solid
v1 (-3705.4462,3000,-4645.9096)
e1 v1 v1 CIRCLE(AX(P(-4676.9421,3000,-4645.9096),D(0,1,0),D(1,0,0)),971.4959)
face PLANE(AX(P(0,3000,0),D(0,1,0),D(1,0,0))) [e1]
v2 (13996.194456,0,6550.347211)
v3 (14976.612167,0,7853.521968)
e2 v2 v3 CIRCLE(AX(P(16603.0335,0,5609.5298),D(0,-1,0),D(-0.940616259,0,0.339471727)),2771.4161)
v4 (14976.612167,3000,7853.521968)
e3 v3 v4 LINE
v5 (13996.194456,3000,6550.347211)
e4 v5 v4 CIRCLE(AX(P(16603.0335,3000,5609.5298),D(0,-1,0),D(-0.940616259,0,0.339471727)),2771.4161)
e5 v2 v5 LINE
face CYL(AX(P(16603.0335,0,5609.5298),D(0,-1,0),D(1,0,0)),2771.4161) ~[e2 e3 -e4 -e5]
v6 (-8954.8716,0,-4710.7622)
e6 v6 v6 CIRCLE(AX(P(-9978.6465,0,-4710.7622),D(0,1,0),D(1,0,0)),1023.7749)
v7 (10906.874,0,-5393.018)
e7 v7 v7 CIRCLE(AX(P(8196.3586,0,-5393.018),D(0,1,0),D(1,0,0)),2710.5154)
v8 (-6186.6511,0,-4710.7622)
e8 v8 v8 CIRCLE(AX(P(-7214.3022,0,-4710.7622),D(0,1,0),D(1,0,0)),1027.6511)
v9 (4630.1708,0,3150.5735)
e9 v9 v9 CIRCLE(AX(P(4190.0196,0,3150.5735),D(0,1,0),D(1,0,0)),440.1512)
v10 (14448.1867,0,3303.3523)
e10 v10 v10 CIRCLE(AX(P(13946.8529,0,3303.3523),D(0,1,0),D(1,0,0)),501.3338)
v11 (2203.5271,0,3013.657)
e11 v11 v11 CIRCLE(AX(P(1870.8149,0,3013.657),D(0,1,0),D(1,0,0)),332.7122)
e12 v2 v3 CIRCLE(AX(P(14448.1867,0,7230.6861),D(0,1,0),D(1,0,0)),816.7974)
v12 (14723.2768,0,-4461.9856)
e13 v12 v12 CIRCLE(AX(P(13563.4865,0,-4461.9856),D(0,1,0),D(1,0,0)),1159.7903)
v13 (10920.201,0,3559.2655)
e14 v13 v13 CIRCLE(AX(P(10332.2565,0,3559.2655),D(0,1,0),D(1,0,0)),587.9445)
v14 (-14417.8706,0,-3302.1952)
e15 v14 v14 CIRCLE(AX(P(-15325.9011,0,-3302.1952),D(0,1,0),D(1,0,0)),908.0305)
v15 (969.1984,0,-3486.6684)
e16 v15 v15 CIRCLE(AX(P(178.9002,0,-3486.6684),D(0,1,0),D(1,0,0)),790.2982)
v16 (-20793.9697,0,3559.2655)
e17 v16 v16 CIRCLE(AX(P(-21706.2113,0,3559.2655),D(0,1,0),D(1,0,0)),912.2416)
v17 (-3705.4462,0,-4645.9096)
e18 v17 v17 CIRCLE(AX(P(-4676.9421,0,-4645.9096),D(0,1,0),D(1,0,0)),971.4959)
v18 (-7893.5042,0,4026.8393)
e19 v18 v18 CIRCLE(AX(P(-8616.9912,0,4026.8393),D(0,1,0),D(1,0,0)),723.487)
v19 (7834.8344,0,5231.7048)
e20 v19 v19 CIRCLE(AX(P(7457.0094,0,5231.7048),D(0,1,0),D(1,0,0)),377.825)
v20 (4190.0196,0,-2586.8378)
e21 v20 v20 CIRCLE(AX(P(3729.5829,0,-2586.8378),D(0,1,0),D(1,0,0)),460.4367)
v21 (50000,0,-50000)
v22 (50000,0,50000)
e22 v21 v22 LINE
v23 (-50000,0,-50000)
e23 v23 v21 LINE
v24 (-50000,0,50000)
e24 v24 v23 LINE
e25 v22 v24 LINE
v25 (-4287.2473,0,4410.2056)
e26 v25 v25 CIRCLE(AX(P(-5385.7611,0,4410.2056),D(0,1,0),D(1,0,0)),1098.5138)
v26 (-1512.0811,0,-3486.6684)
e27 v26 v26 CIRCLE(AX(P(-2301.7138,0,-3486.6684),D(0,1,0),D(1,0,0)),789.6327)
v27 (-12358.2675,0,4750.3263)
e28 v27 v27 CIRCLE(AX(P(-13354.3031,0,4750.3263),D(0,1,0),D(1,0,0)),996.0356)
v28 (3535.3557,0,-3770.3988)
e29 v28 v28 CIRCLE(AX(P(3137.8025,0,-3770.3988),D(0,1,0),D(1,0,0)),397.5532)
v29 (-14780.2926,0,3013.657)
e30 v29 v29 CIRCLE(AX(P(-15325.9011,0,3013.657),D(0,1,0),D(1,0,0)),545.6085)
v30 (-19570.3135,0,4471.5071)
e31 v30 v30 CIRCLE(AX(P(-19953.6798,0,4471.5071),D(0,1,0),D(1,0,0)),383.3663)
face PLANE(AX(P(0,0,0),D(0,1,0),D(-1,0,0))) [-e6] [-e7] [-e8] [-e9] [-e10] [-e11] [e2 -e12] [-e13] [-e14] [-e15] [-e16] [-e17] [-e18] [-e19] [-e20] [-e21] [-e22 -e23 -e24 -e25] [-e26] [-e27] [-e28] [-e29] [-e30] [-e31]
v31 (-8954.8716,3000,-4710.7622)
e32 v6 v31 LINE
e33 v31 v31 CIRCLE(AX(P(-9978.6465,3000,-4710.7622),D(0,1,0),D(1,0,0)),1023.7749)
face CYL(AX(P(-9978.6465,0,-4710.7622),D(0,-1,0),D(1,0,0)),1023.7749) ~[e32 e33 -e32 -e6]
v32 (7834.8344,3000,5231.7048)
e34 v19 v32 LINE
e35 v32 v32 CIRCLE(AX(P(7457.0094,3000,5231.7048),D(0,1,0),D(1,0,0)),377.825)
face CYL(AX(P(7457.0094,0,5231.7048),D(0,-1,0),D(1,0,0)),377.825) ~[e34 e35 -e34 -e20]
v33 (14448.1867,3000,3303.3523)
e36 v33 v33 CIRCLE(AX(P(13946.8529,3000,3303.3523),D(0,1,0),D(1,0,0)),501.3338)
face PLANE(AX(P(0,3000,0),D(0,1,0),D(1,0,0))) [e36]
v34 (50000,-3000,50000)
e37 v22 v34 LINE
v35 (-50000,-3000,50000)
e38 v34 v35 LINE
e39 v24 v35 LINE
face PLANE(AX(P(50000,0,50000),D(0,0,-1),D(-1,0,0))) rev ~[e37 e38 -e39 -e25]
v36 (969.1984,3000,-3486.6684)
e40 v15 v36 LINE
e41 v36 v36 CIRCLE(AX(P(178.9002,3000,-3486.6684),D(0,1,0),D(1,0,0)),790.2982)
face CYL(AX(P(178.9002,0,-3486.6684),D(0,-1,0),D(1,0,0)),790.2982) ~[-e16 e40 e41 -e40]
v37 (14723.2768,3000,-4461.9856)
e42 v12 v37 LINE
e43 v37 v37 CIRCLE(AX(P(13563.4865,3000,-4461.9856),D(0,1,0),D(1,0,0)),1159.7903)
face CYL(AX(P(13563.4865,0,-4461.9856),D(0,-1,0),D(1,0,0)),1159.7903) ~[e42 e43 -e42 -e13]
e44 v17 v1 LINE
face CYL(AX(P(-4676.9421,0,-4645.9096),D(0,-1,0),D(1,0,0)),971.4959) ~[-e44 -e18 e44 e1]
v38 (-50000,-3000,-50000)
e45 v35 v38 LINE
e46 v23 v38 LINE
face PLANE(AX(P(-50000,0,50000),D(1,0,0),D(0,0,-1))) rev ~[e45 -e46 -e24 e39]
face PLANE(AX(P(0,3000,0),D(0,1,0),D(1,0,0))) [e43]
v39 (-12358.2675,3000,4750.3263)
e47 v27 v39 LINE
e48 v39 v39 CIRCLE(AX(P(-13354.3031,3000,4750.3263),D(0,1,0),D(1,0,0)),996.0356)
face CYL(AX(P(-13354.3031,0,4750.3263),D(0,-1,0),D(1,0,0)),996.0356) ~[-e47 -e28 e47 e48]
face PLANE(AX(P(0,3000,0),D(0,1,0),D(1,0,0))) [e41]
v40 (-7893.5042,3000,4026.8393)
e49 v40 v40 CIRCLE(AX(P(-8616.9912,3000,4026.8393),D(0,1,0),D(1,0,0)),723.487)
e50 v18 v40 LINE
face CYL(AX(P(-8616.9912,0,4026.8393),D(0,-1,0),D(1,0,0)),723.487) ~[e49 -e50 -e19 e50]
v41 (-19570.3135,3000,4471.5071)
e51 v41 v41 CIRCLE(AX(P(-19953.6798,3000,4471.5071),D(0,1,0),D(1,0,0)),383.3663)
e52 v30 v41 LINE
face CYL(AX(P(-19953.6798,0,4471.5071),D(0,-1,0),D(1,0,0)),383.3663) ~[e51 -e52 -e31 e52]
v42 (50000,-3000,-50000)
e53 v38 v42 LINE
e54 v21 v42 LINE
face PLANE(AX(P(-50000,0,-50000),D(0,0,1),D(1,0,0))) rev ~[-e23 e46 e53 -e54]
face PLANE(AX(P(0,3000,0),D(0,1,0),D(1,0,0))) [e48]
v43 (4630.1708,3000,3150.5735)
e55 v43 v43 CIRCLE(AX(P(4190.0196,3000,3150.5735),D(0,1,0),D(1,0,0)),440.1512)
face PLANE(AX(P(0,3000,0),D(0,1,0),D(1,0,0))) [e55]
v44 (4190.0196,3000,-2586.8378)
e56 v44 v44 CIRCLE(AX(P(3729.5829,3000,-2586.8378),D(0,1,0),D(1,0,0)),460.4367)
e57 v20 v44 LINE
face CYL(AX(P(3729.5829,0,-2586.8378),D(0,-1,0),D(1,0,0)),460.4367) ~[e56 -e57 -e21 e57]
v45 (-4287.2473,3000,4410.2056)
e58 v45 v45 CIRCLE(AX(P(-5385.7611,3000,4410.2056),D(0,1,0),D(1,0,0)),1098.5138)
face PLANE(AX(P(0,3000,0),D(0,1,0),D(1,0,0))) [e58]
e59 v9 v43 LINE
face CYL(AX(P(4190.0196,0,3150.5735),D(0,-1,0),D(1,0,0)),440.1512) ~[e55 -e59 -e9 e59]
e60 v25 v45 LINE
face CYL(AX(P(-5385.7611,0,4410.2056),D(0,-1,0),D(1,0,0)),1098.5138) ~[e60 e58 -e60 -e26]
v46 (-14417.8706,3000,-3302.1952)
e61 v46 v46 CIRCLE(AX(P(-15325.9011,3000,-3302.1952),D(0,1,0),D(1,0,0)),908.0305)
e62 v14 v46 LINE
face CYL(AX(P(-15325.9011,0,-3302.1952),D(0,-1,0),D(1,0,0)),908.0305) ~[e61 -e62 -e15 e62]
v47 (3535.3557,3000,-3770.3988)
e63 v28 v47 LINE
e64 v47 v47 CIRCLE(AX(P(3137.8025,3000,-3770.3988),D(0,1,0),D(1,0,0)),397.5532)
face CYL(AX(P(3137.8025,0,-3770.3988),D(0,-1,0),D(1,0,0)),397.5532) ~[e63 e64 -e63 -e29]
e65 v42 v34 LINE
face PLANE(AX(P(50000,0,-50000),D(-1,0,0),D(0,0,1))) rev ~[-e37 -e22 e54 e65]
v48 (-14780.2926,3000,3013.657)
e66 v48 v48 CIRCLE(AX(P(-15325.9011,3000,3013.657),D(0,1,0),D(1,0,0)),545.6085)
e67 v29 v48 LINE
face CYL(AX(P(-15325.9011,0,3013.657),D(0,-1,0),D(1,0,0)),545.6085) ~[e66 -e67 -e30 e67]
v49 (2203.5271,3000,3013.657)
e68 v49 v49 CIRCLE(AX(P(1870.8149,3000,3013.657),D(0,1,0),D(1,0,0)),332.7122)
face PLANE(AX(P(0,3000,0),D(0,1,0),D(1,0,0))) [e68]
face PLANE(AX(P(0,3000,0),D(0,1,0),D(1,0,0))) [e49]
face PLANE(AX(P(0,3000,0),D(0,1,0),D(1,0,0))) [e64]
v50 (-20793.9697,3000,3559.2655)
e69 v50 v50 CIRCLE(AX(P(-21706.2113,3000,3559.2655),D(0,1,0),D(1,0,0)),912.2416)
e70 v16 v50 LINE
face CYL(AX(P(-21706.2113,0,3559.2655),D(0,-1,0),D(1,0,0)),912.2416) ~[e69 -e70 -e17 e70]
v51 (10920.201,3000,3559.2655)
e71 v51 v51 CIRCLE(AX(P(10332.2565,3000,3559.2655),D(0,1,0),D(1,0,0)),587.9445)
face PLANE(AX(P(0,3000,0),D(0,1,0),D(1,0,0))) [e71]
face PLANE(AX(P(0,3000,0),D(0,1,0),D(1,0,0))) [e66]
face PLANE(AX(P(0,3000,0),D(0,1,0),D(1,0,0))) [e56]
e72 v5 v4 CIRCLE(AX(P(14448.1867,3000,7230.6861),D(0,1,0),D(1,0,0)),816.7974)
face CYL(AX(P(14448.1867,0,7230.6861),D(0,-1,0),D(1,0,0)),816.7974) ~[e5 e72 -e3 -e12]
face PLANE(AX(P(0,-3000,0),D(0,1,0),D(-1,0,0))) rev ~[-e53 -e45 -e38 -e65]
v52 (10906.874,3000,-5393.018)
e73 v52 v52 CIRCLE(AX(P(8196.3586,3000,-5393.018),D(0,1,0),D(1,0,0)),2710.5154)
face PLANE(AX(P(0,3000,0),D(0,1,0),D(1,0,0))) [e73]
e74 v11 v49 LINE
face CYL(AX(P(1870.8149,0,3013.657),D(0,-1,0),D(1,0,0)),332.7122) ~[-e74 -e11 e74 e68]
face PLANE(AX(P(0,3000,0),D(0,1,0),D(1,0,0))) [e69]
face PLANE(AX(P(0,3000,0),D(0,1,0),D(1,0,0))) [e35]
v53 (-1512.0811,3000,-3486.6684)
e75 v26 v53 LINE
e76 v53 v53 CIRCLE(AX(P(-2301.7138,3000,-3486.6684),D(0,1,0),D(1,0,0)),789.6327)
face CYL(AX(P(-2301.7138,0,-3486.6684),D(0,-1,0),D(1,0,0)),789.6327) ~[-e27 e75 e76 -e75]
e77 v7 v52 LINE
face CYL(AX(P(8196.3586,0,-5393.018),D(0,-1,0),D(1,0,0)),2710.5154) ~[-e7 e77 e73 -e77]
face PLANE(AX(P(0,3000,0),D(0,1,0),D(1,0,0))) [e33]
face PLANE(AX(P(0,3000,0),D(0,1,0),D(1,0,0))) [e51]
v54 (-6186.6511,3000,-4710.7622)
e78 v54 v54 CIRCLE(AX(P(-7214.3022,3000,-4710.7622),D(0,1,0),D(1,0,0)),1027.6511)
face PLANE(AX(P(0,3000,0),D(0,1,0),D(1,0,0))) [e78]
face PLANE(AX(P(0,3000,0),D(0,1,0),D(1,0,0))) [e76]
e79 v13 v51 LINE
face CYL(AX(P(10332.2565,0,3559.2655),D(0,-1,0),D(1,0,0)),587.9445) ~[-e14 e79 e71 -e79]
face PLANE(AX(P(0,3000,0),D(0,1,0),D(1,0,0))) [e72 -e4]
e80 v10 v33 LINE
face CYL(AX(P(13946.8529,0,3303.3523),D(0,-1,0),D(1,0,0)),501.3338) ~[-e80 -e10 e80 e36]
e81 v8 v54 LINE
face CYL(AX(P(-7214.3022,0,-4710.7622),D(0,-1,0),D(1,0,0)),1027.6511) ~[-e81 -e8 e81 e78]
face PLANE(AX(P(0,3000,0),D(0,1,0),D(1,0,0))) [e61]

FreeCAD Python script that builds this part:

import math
import FreeCAD as App
import Part
import Sketcher
from FreeCAD import Vector
Q = App.Units.Quantity


def add_polygon(sketch, points):
    """Adds a closed chain of lines whose ends are joined by coincident constraints."""
    first, n = sketch.GeometryCount, len(points)
    for a, b in zip(points, points[1:] + points[:1]):
        sketch.addGeometry(Part.LineSegment(App.Vector(*a, 0), App.Vector(*b, 0)), False)
    for i in range(n):
        sketch.addConstraint(Sketcher.Constraint("Coincident", first + i, 2, first + (i + 1) % n, 1))

doc = App.newDocument("Part")
params = doc.addObject("Spreadsheet::Sheet", "Params")
for row, (alias, value) in enumerate([
    ("pad1_length", "3000 mm"),
    ("sketch2_length", "84.177 in"),
    ("sketch2_length2", "84.1769882 in"),
    ("pad2_length", "3000 mm"),
    ("sketch4_diameter", "29.75 in"),
    ("sketch4_diameter2", "78.428 in"),
    ("pad3_length", "3000 mm"),
], start=1):
    params.set(f"A{row}", alias)
    params.set(f"B{row}", "=" + value)
    params.setAlias(f"B{row}", alias)

body = doc.addObject("PartDesign::Body", "Body")

sketch1 = body.newObject("Sketcher::SketchObject", "Sketch")
sketch1.AttachmentSupport = (doc.getObject("XZ_Plane"), [""])
sketch1.MapMode = "FlatFace"
add_polygon(sketch1, [(-50000, 50000), (50000, 50000), (50000, -50000), (-50000, -50000)])
sketch1.addConstraint([
    Sketcher.Constraint("Horizontal", 0),
    Sketcher.Constraint("Vertical", 1),
    Sketcher.Constraint("Horizontal", 2),
    Sketcher.Constraint("Vertical", 3),
    Sketcher.Constraint("Symmetric", 0, 2, 2, 2, -1, 1),
    Sketcher.Constraint("Equal", 2, 1),
    Sketcher.Constraint("DistanceX", 0, 1, 0, 2, 100000.0),
])
pad1 = body.newObject("PartDesign::Pad", "Pad")
pad1.Profile = sketch1
pad1.setExpression("Length", "Params.pad1_length")

sketch2 = body.newObject("Sketcher::SketchObject", "Sketch001")
sketch2.AttachmentSupport = (doc.getObject("XZ_Plane"), [""])
sketch2.MapMode = "FlatFace"
add_polygon(sketch2, [(2445.7903, -4086.164), (3479.5334, -2000), (4246.1072, -2379.8553), (3212.3641, -4466.0192)])
add_polygon(sketch2, [(11345.2122, -8455.2241), (5190.5361, -8455.2241), (5190.5361, -2832.4339), (11345.2122, -2832.4339)])
add_polygon(sketch2, [(13548.7384, 2828.3483), (13548.7384, 7995.2366), (20995.1366, 7995.2366), (20995.1366, 2828.3483)])
add_polygon(sketch2, [(4772.6262, 2562.4055), (593.5251, 2562.4055), (593.5251, 3778.1439), (4772.6262, 3778.1439)])
add_polygon(sketch2, [(-4079.4695, -5605.837), (-10538.0803, -5605.837), (-10538.0803, -3706.2457), (-4079.4695, -3706.2457)])
add_polygon(sketch2, [(1581.3128, -4314.115), (-3357.6248, -4314.115), (-3357.6248, -2642.4746), (1581.3128, -2642.4746)])
add_polygon(sketch2, [(-4779.0471, 3304.0821), (-9040.7205, 3304.0821), (-9040.7205, 6275.5798), (-4779.0471, 6275.5798)])
add_polygon(sketch2, [(12108.0508, -4785.1606), (12978.8612, -2832.4339), (15790.2565, -4086.164), (14919.446, -6038.8907)])
add_polygon(sketch2, [(6732.3859, 4748.1459), (7237.4094, 5991.9062), (11076.909, 4432.894), (10571.8855, 3189.1337)])
add_polygon(sketch2, [(-14805.5919, -4691.9262), (-16072.161, -3808.7972), (-15391.3811, -2832.4339), (-14124.812, -3715.5628)])
add_polygon(sketch2, [(-21400.3724, 2459.1996), (-23491.5084, 4748.1459), (-20999.8327, 7024.4914), (-18908.6968, 4735.5451)])
add_polygon(sketch2, [(-15377.224, 2122.4342), (-16105.7388, 3167.2582), (-12909.355, 5395.9713), (-12180.8401, 4351.1472)])
sketch2.addConstraint([
    Sketcher.Constraint("Horizontal", 4),
    Sketcher.Constraint("Vertical", 5),
    Sketcher.Constraint("Horizontal", 6),
    Sketcher.Constraint("Vertical", 7),
    Sketcher.Constraint("Vertical", 8),
    Sketcher.Constraint("Horizontal", 9),
    Sketcher.Constraint("Vertical", 10),
    Sketcher.Constraint("Horizontal", 11),
    Sketcher.Constraint("Horizontal", 12),
    Sketcher.Constraint("Vertical", 13),
    Sketcher.Constraint("Horizontal", 14),
    Sketcher.Constraint("Vertical", 15),
    Sketcher.Constraint("Horizontal", 16),
    Sketcher.Constraint("Vertical", 17),
    Sketcher.Constraint("Horizontal", 18),
    Sketcher.Constraint("Vertical", 19),
    Sketcher.Constraint("Horizontal", 20),
    Sketcher.Constraint("Vertical", 21),
    Sketcher.Constraint("Horizontal", 22),
    Sketcher.Constraint("Vertical", 23),
    Sketcher.Constraint("Horizontal", 24),
    Sketcher.Constraint("Vertical", 25),
    Sketcher.Constraint("Horizontal", 26),
    Sketcher.Constraint("Vertical", 27),
    Sketcher.Constraint("DistanceX", 18, 2, 3, 2, Q("256.9 in")),
    Sketcher.Constraint("Distance", 30, Q("84.177 in")),
    Sketcher.Constraint("DistanceY", 5, 1, 5, 2, Q("221.3697 in")),
    Sketcher.Constraint("DistanceY", 8, 1, 8, 2, Q("203.4208 in")),
    Sketcher.Constraint("DistanceY", 25, 1, 25, 2, Q("116.9881 in")),
    Sketcher.Constraint("DistanceY", 38, 2, -1, 1, Q("146.282 in")),
    Sketcher.Constraint("DistanceY", -1, 1, 46, 2, Q("171.305 in")),
    Sketcher.Constraint("DistanceY", 5, 2, 0, 2, Q("32.773 in")),
    Sketcher.Constraint("DistanceX", 6, 2, 8, 2, Q("86.753 in")),
    Sketcher.Constraint("DistanceX", 16, 2, 3, 2, Q("511.176 in")),
    Sketcher.Constraint("DistanceY", 17, 2, 13, 2, Q("294.661 in")),
    Sketcher.Constraint("DistanceX", 25, 2, 13, 2, Q("379.301 in")),
    Sketcher.Constraint("DistanceY", 30, 2, 29, 2, Q("76.879 in")),
    Sketcher.Constraint("DistanceY", 31, 2, 6, 2, Q("76.879 in")),
    Sketcher.Constraint("DistanceY", 31, 2, 28, 2, Q("76.879 in")),
    Sketcher.Constraint("DistanceY", 14, 2, 32, 2, Q("87.156 in")),
    Sketcher.Constraint("DistanceX", 37, 2, 24, 2, Q("250.026 in")),
    Sketcher.Constraint("DistanceY", 42, 2, 41, 2, Q("90.116 in")),
    Sketcher.Constraint("DistanceX", 42, 2, 37, 2, Q("138.477 in")),
    Sketcher.Constraint("DistanceY", 43, 2, 40, 2, Q("90.116 in")),
    Sketcher.Constraint("Distance", 37, Q("46.8611 in")),
    Sketcher.Constraint("Distance", 39, Q("46.8611 in")),
    Sketcher.Constraint("Distance", 44, Q("50.1469 in")),
    Sketcher.Constraint("Distance", 46, Q("50.1469 in")),
    Sketcher.Constraint("DistanceX", 4, 2, 4, 1, 6154.676),
    Sketcher.Constraint("DistanceX", 9, 1, 9, 2, 7446.3982),
    Sketcher.Constraint("DistanceX", 12, 2, 12, 1, 4179.101),
    Sketcher.Constraint("DistanceX", 20, 2, 20, 1, 4938.9376),
    Sketcher.Constraint("DistanceX", 24, 2, 24, 1, 4261.6734),
    Sketcher.Constraint("DistanceY", 13, 1, 13, 2, 1215.7384),
    Sketcher.Constraint("DistanceY", 17, 1, 17, 2, 1899.5913),
    Sketcher.Constraint("DistanceY", 21, 1, 21, 2, 1671.6404),
    Sketcher.Constraint("DistanceX", -1, 1, 0, 2, Q("136.9895 in")),
    Sketcher.Constraint("DistanceY", 1, 2, -1, 1, Q("93.6951 in")),
    Sketcher.Constraint("DistanceY", 3, 2, -1, 1, Q("160.8726 in")),
    Sketcher.Constraint("DistanceX", -1, 1, 6, 2, Q("446.6619 in")),
    Sketcher.Constraint("DistanceY", -1, 1, 8, 2, Q("314.7731 in")),
    Sketcher.Constraint("DistanceY", -1, 1, 12, 2, Q("100.8821 in")),
    Sketcher.Constraint("DistanceX", -1, 1, 22, 2, Q("62.2564 in")),
    Sketcher.Constraint("DistanceY", 29, 2, -1, 1, Q("160.8726 in")),
    Sketcher.Constraint("DistanceY", 39, 2, -1, 1, Q("184.7215 in")),
    Sketcher.Constraint("DistanceX", 44, 2, -1, 1, Q("634.0842 in")),
    Sketcher.Constraint("DistanceY", -1, 1, 44, 2, Q("124.6952 in")),
    Sketcher.Constraint("DistanceY", -1, 1, 47, 2, Q("83.5604 in")),
    Sketcher.Constraint("DistanceY", 4, 2, 2, 2, Q("157.0553 in")),
    Sketcher.Constraint("DistanceX", 1, 2, 9, 2, Q("659.4106 in")),
    Sketcher.Constraint("DistanceX", 12, 2, 2, 2, Q("103.1039 in")),
    Sketcher.Constraint("DistanceX", 1, 2, 14, 2, Q("20.7291 in")),
    Sketcher.Constraint("DistanceY", 19, 2, 20, 2, Q("50.8552 in")),
    Sketcher.Constraint("DistanceX", 20, 2, 3, 2, Q("228.4809 in")),
    Sketcher.Constraint("DistanceY", 2, 2, 22, 2, Q("71.7931 in")),
    Sketcher.Constraint("DistanceY", 21, 2, 24, 2, Q("234.1164 in")),
    Sketcher.Constraint("DistanceX", 6, 2, 28, 2, Q("64.3169 in")),
    Sketcher.Constraint("DistanceX", 14, 2, 32, 2, Q("97.0387 in")),
    Sketcher.Constraint("DistanceY", 11, 2, 33, 2, Q("63.1711 in")),
    Sketcher.Constraint("DistanceX", 32, 2, 33, 2, Q("151.1614 in")),
    Sketcher.Constraint("DistanceX", 14, 2, 34, 2, Q("228.3173 in")),
    Sketcher.Constraint("DistanceX", 14, 2, 35, 2, Q("77.1559 in")),
    Sketcher.Constraint("DistanceY", 33, 2, 35, 2, Q("12.4115 in")),
    Sketcher.Constraint("DistanceX", 36, 2, 17, 2, Q("217.8772 in")),
    Sketcher.Constraint("DistanceY", 16, 2, 36, 2, Q("70.7496 in")),
    Sketcher.Constraint("DistanceX", 38, 2, 17, 2, Q("141.2099 in")),
    Sketcher.Constraint("DistanceX", 40, 2, 36, 2, Q("292.1003 in")),
    Sketcher.Constraint("DistanceY", 24, 2, 40, 2, Q("56.8529 in")),
    Sketcher.Constraint("DistanceY", 40, 2, 41, 2, Q("89.6199 in")),
    Sketcher.Constraint("DistanceX", 41, 2, 25, 2, Q("470.8312 in")),
    Sketcher.Constraint("DistanceX", 40, 2, 43, 2, Q("82.3282 in")),
    Sketcher.Constraint("DistanceY", 44, 2, 45, 2, Q("87.7446 in")),
    Sketcher.Constraint("DistanceX", 47, 2, 45, 2, Q("97.1602 in")),
    Sketcher.Constraint("Distance", 28, Q("84.1769882 in")),
    Sketcher.Constraint("Distance", 29, 3078.276),
    Sketcher.Constraint("Distance", 34, 1342.3816),
])
sketch2.setExpression("Constraints[73]", "Params.sketch2_length")
sketch2.setExpression("Constraints[141]", "Params.sketch2_length2")
pad2 = body.newObject("PartDesign::Pad", "Pad001")
pad2.Profile = sketch2
pad2.setExpression("Length", "Params.pad2_length")
pad2.Reversed = True

sketch3 = body.newObject("Sketcher::SketchObject", "Sketch002")
sketch3.AttachmentSupport = (doc.getObject("XZ_Plane"), [""])
sketch3.MapMode = "FlatFace"
add_polygon(sketch3, [(50000, -50000), (-50000, -50000), (-50000, 50000), (50000, 50000)])
sketch3.addConstraint([
    Sketcher.Constraint("Horizontal", 0),
    Sketcher.Constraint("Vertical", 1),
    Sketcher.Constraint("Horizontal", 2),
    Sketcher.Constraint("Vertical", 3),
    Sketcher.Constraint("Symmetric", 0, 2, 2, 2, -1, 1),
    Sketcher.Constraint("Equal", 2, 1),
    Sketcher.Constraint("DistanceX", 0, 2, 0, 1, 100000.0),
])
pocket1 = body.newObject("PartDesign::Pocket", "Pocket")
pocket1.Profile = sketch3
pocket1.Type = "ThroughAll"

sketch4 = body.newObject("Sketcher::SketchObject", "Sketch003")
sketch4.AttachmentSupport = (doc.getObject("XZ_Plane"), [""])
sketch4.MapMode = "FlatFace"
sketch4.addGeometry([
    Part.Circle(Vector(-9979, -4711, 0), Vector(0, 0, 1), 1024),
    Part.Circle(Vector(-7214, -4711, 0), Vector(0, 0, 1), 1028),
    Part.Circle(Vector(-4677, -4646, 0), Vector(0, 0, 1), 971),
    Part.Circle(Vector(-2302, -3487, 0), Vector(0, 0, 1), 790),
    Part.Circle(Vector(179, -3487, 0), Vector(0, 0, 1), 790),
    Part.Circle(Vector(3138, -3770, 0), Vector(0, 0, 1), 398),
    Part.Circle(Vector(3730, -2587, 0), Vector(0, 0, 1), 460),
    Part.Circle(Vector(8196, -5393, 0), Vector(0, 0, 1), 2711),
    Part.Circle(Vector(13563, -4462, 0), Vector(0, 0, 1), 1160),
    Part.Circle(Vector(4190, 3151, 0), Vector(0, 0, 1), 440),
    Part.Circle(Vector(1871, 3014, 0), Vector(0, 0, 1), 333),
    Part.Circle(Vector(-5386, 4410, 0), Vector(0, 0, 1), 1099),
    Part.Circle(Vector(-8617, 4027, 0), Vector(0, 0, 1), 723),
    Part.Circle(Vector(-15326, 3014, 0), Vector(0, 0, 1), 546),
    Part.Circle(Vector(-13354, 4750, 0), Vector(0, 0, 1), 996),
    Part.Circle(Vector(-15326, -3302, 0), Vector(0, 0, 1), 908),
    Part.Circle(Vector(-21706, 3559, 0), Vector(0, 0, 1), 912),
    Part.Circle(Vector(-19954, 4472, 0), Vector(0, 0, 1), 383),
    Part.Circle(Vector(7457, 5232, 0), Vector(0, 0, 1), 378),
    Part.Circle(Vector(10332, 3559, 0), Vector(0, 0, 1), 588),
    Part.Circle(Vector(13947, 3303, 0), Vector(0, 0, 1), 501),
    Part.ArcOfCircle(Part.Circle(Vector(16603, 5610, 0), Vector(0, 0, 1), 2771), math.radians(160), math.radians(486)),
    Part.ArcOfCircle(Part.Circle(Vector(14448, 7231, 0), Vector(0, 0, 1), 817), math.radians(50), math.radians(236)),
], False)
sketch4.addConstraint([
    Sketcher.Constraint("Coincident", 21, 1, 22, 2),
    Sketcher.Constraint("Coincident", 22, 1, 21, 2),
    Sketcher.Constraint("Horizontal", 0, 3, 1, 3),
    Sketcher.Constraint("Horizontal", 3, 3, 4, 3),
    Sketcher.Constraint("Horizontal", 10, 3, 13, 3),
    Sketcher.Constraint("Horizontal", 16, 3, 19, 3),
    Sketcher.Constraint("Vertical", 13, 3, 15, 3),
    Sketcher.Constraint("Diameter", 18, Q("29.75 in")),
    Sketcher.Constraint("Diameter", 14, Q("78.428 in")),
    Sketcher.Constraint("Diameter", 0, Q("80.6122 in")),
    Sketcher.Constraint("Diameter", 1, Q("80.9174 in")),
    Sketcher.Constraint("Diameter", 3, Q("62.1758 in")),
    Sketcher.Constraint("Diameter", 4, Q("62.2282 in")),
    Sketcher.Constraint("Diameter", 5, Q("31.3034 in")),
    Sketcher.Constraint("Diameter", 7, Q("213.4264 in")),
    Sketcher.Constraint("Diameter", 10, Q("26.1978 in")),
    Sketcher.Constraint("Diameter", 13, Q("42.9613 in")),
    Sketcher.Constraint("Diameter", 20, Q("39.4751 in")),
    Sketcher.Constraint("Diameter", 2, 1942.9918),
    Sketcher.Constraint("Diameter", 6, 920.8734),
    Sketcher.Constraint("Diameter", 8, 2319.5806),
    Sketcher.Constraint("Diameter", 9, 880.3024),
    Sketcher.Constraint("Diameter", 11, 2197.0276),
    Sketcher.Constraint("Diameter", 12, 1446.974),
    Sketcher.Constraint("Diameter", 15, 1816.061),
    Sketcher.Constraint("Diameter", 16, 1824.4832),
    Sketcher.Constraint("Diameter", 17, 766.7326),
    Sketcher.Constraint("Diameter", 19, 1175.889),
    Sketcher.Constraint("Radius", 21, 2771.416),
    Sketcher.Constraint("Radius", 22, 816.7974),
    Sketcher.Constraint("DistanceX", 5, 3, 8, 3, Q("410.46 in")),
    Sketcher.Constraint("DistanceY", 6, 3, -1, 1, Q("101.844 in")),
    Sketcher.Constraint("DistanceX", 1, 3, 3, 3, Q("193.409 in")),
    Sketcher.Constraint("DistanceY", 0, 3, 13, 3, Q("304.111 in")),
    Sketcher.Constraint("DistanceX", 17, 3, 13, 3, Q("182.196 in")),
    Sketcher.Constraint("DistanceY", 18, 3, 21, 3, Q("14.875 in")),
    Sketcher.Constraint("DistanceX", 0, 3, -1, 1, Q("392.8601 in")),
    Sketcher.Constraint("DistanceY", 3, 3, -1, 1, Q("137.2704 in")),
    Sketcher.Constraint("DistanceY", 5, 3, -1, 1, Q("148.4409 in")),
    Sketcher.Constraint("DistanceX", -1, 1, 9, 3, Q("164.9614 in")),
    Sketcher.Constraint("DistanceX", -1, 1, 20, 3, Q("549.0887 in")),
    Sketcher.Constraint("DistanceX", 2, 3, 4, 3, Q("191.1749 in")),
    Sketcher.Constraint("DistanceX", 2, 3, 5, 3, Q("307.6671 in")),
    Sketcher.Constraint("DistanceX", 6, 3, 7, 3, Q("175.8573 in")),
    Sketcher.Constraint("DistanceX", 10, 3, 5, 3, Q("49.8814 in")),
    Sketcher.Constraint("DistanceY", 5, 3, 10, 3, Q("267.0888 in")),
    Sketcher.Constraint("DistanceX", 1, 3, 11, 3, Q("71.9898 in")),
    Sketcher.Constraint("DistanceY", 2, 3, 12, 3, Q("341.4468 in")),
    Sketcher.Constraint("DistanceY", 3, 3, 12, 3, Q("295.8074 in")),
    Sketcher.Constraint("DistanceX", 13, 3, 12, 3, Q("264.1303 in")),
    Sketcher.Constraint("DistanceX", 13, 3, 11, 3, Q("391.3441 in")),
    Sketcher.Constraint("DistanceY", 13, 3, 14, 3, Q("68.3728 in")),
    Sketcher.Constraint("DistanceY", 0, 3, 15, 3, Q("55.4554 in")),
    Sketcher.Constraint("DistanceX", 16, 3, 17, 3, Q("68.9973 in")),
    Sketcher.Constraint("DistanceY", 12, 3, 17, 3, Q("17.5066 in")),
    Sketcher.Constraint("DistanceY", 9, 3, 18, 3, Q("81.9343 in")),
    Sketcher.Constraint("DistanceX", 18, 3, 19, 3, Q("113.1987 in")),
    Sketcher.Constraint("DistanceY", 20, 3, 18, 3, Q("75.9194 in")),
    Sketcher.Constraint("DistanceX", 18, 3, 21, 3, Q("360.0797 in")),
    Sketcher.Constraint("DistanceX", 8, 3, 21, 3, Q("119.6672 in")),
    Sketcher.Constraint("DistanceX", 22, 3, 21, 3, Q("84.8365 in")),
    Sketcher.Constraint("DistanceX", 1, 3, -1, 1, 7214.3022),
    Sketcher.Constraint("DistanceX", 2, 3, -1, 1, 4676.942),
    Sketcher.Constraint("DistanceX", -1, 1, 6, 3, 3729.583),
    Sketcher.Constraint("DistanceY", 7, 3, -1, 1, 5393.018),
    Sketcher.Constraint("DistanceY", 8, 3, -1, 1, 4461.9856),
    Sketcher.Constraint("DistanceY", -1, 1, 9, 3, 3150.5735),
    Sketcher.Constraint("DistanceY", -1, 1, 11, 3, 4410.2056),
    Sketcher.Constraint("DistanceX", 14, 3, -1, 1, 13354.303),
    Sketcher.Constraint("DistanceY", -1, 1, 16, 3, 3559.2655),
    Sketcher.Constraint("DistanceY", -1, 1, 22, 3, 7230.686),
])
sketch4.setExpression("Constraints[7]", "Params.sketch4_diameter")
sketch4.setExpression("Constraints[8]", "Params.sketch4_diameter2")
pad3 = body.newObject("PartDesign::Pad", "Pad002")
pad3.Profile = sketch4
pad3.setExpression("Length", "Params.pad3_length")
pad3.Reversed = True

doc.recompute()
